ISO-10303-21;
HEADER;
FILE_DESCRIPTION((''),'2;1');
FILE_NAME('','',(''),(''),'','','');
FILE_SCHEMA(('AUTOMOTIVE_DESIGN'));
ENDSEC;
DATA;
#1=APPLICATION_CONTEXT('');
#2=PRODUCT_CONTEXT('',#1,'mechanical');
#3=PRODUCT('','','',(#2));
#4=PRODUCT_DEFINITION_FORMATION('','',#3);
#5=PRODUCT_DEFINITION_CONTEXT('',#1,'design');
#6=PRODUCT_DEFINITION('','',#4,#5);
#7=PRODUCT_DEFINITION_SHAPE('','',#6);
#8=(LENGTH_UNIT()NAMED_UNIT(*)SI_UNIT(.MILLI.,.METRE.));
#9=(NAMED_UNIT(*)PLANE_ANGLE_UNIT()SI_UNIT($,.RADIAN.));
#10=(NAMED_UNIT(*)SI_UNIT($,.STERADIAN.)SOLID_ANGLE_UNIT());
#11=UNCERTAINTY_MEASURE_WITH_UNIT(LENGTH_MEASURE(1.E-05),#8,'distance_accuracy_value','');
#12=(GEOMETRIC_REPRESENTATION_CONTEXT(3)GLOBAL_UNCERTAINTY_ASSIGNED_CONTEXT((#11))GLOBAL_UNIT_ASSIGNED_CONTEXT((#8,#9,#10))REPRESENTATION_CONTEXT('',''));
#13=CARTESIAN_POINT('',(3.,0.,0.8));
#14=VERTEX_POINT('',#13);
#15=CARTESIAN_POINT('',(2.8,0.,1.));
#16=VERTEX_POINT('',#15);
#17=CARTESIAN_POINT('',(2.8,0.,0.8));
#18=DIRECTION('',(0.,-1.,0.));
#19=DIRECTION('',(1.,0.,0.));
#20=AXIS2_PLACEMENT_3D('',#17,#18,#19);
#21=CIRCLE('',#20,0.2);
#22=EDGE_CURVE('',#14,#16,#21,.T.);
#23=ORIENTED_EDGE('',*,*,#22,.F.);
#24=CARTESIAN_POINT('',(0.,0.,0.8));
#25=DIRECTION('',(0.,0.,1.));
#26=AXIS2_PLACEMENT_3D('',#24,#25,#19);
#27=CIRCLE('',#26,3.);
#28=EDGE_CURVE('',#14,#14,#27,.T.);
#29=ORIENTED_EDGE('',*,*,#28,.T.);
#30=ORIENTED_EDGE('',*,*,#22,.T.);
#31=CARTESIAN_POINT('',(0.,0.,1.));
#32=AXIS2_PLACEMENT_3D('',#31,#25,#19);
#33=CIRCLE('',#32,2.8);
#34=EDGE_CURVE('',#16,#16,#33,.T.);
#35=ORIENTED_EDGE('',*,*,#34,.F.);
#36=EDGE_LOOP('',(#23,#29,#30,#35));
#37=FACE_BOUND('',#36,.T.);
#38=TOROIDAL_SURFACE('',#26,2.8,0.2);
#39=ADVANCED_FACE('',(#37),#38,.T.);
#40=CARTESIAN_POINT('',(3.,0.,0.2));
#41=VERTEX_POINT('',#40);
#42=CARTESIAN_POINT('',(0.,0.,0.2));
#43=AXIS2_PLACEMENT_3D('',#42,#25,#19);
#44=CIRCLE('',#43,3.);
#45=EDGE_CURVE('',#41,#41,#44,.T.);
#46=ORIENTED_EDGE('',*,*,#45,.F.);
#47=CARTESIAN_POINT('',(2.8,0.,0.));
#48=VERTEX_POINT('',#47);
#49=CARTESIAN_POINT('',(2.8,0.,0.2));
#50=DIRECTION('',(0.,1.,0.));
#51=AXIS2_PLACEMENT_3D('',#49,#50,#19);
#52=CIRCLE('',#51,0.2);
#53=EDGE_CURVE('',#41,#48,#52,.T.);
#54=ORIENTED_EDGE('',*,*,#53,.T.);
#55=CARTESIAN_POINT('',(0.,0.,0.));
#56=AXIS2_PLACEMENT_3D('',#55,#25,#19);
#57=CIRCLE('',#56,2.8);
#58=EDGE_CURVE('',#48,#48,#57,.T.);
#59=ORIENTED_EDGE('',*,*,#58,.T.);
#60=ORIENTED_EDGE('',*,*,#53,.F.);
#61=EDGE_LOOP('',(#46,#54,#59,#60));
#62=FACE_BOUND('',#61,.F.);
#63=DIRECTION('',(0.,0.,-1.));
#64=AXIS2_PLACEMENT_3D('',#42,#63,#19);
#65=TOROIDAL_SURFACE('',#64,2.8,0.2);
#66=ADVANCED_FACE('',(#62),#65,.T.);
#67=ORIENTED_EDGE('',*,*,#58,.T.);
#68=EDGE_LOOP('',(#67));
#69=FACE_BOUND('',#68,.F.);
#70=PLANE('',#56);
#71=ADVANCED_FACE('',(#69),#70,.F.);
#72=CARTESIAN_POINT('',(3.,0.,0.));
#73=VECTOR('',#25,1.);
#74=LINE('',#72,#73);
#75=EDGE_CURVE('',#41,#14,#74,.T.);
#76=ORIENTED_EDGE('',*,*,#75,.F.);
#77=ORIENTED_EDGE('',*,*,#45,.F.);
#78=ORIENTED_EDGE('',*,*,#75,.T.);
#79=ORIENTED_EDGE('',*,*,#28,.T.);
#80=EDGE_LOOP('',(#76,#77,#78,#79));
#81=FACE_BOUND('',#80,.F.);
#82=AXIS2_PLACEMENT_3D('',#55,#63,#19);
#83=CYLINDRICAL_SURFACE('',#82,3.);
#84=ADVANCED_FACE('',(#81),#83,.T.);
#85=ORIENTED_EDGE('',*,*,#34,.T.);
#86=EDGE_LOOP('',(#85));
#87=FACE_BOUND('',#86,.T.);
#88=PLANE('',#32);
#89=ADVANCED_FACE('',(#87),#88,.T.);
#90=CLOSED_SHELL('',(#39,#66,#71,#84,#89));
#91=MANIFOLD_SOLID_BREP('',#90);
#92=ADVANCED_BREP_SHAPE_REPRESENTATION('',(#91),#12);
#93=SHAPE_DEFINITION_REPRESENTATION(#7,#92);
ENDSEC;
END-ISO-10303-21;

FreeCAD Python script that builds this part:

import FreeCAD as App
import Part
import Sketcher

V = App.Vector
Q = App.Units.Quantity


def edges_at(feature, points):
    """Names of the edges that pass closest to the given points."""
    edges = feature.Shape.Edges
    near = lambda p: min(range(len(edges)), key=lambda i: edges[i].distToShape(Part.Vertex(*p))[0])
    return sorted({f"Edge{near(p) + 1}" for p in points})

doc = App.newDocument("Part")
body = doc.addObject("PartDesign::Body", "Body")

# Sketch on XY plane
sketch1 = body.newObject("Sketcher::SketchObject", "Sketch")
sketch1.AttachmentSupport = (doc.getObject("XY_Plane"), [""])
sketch1.MapMode = "FlatFace"
sketch1.addGeometry(Part.Circle(V(0, 0, 0), V(0, 0, 1), 3), False)
sketch1.addConstraint([
    Sketcher.Constraint("Coincident", 0, 3, -1, 1),
    Sketcher.Constraint("Diameter", 0, Q("6 mm")),
])
pad1 = body.newObject("PartDesign::Pad", "Pad")
pad1.Profile = sketch1
pad1.Length = 1
doc.recompute()

fillet = body.newObject("PartDesign::Fillet", "Fillet")
fillet.Base = (pad1, edges_at(pad1, [(-2.797, -1.085, 1), (-2.797, -1.085, 0)]))
fillet.Radius = 0.2

doc.recompute()
